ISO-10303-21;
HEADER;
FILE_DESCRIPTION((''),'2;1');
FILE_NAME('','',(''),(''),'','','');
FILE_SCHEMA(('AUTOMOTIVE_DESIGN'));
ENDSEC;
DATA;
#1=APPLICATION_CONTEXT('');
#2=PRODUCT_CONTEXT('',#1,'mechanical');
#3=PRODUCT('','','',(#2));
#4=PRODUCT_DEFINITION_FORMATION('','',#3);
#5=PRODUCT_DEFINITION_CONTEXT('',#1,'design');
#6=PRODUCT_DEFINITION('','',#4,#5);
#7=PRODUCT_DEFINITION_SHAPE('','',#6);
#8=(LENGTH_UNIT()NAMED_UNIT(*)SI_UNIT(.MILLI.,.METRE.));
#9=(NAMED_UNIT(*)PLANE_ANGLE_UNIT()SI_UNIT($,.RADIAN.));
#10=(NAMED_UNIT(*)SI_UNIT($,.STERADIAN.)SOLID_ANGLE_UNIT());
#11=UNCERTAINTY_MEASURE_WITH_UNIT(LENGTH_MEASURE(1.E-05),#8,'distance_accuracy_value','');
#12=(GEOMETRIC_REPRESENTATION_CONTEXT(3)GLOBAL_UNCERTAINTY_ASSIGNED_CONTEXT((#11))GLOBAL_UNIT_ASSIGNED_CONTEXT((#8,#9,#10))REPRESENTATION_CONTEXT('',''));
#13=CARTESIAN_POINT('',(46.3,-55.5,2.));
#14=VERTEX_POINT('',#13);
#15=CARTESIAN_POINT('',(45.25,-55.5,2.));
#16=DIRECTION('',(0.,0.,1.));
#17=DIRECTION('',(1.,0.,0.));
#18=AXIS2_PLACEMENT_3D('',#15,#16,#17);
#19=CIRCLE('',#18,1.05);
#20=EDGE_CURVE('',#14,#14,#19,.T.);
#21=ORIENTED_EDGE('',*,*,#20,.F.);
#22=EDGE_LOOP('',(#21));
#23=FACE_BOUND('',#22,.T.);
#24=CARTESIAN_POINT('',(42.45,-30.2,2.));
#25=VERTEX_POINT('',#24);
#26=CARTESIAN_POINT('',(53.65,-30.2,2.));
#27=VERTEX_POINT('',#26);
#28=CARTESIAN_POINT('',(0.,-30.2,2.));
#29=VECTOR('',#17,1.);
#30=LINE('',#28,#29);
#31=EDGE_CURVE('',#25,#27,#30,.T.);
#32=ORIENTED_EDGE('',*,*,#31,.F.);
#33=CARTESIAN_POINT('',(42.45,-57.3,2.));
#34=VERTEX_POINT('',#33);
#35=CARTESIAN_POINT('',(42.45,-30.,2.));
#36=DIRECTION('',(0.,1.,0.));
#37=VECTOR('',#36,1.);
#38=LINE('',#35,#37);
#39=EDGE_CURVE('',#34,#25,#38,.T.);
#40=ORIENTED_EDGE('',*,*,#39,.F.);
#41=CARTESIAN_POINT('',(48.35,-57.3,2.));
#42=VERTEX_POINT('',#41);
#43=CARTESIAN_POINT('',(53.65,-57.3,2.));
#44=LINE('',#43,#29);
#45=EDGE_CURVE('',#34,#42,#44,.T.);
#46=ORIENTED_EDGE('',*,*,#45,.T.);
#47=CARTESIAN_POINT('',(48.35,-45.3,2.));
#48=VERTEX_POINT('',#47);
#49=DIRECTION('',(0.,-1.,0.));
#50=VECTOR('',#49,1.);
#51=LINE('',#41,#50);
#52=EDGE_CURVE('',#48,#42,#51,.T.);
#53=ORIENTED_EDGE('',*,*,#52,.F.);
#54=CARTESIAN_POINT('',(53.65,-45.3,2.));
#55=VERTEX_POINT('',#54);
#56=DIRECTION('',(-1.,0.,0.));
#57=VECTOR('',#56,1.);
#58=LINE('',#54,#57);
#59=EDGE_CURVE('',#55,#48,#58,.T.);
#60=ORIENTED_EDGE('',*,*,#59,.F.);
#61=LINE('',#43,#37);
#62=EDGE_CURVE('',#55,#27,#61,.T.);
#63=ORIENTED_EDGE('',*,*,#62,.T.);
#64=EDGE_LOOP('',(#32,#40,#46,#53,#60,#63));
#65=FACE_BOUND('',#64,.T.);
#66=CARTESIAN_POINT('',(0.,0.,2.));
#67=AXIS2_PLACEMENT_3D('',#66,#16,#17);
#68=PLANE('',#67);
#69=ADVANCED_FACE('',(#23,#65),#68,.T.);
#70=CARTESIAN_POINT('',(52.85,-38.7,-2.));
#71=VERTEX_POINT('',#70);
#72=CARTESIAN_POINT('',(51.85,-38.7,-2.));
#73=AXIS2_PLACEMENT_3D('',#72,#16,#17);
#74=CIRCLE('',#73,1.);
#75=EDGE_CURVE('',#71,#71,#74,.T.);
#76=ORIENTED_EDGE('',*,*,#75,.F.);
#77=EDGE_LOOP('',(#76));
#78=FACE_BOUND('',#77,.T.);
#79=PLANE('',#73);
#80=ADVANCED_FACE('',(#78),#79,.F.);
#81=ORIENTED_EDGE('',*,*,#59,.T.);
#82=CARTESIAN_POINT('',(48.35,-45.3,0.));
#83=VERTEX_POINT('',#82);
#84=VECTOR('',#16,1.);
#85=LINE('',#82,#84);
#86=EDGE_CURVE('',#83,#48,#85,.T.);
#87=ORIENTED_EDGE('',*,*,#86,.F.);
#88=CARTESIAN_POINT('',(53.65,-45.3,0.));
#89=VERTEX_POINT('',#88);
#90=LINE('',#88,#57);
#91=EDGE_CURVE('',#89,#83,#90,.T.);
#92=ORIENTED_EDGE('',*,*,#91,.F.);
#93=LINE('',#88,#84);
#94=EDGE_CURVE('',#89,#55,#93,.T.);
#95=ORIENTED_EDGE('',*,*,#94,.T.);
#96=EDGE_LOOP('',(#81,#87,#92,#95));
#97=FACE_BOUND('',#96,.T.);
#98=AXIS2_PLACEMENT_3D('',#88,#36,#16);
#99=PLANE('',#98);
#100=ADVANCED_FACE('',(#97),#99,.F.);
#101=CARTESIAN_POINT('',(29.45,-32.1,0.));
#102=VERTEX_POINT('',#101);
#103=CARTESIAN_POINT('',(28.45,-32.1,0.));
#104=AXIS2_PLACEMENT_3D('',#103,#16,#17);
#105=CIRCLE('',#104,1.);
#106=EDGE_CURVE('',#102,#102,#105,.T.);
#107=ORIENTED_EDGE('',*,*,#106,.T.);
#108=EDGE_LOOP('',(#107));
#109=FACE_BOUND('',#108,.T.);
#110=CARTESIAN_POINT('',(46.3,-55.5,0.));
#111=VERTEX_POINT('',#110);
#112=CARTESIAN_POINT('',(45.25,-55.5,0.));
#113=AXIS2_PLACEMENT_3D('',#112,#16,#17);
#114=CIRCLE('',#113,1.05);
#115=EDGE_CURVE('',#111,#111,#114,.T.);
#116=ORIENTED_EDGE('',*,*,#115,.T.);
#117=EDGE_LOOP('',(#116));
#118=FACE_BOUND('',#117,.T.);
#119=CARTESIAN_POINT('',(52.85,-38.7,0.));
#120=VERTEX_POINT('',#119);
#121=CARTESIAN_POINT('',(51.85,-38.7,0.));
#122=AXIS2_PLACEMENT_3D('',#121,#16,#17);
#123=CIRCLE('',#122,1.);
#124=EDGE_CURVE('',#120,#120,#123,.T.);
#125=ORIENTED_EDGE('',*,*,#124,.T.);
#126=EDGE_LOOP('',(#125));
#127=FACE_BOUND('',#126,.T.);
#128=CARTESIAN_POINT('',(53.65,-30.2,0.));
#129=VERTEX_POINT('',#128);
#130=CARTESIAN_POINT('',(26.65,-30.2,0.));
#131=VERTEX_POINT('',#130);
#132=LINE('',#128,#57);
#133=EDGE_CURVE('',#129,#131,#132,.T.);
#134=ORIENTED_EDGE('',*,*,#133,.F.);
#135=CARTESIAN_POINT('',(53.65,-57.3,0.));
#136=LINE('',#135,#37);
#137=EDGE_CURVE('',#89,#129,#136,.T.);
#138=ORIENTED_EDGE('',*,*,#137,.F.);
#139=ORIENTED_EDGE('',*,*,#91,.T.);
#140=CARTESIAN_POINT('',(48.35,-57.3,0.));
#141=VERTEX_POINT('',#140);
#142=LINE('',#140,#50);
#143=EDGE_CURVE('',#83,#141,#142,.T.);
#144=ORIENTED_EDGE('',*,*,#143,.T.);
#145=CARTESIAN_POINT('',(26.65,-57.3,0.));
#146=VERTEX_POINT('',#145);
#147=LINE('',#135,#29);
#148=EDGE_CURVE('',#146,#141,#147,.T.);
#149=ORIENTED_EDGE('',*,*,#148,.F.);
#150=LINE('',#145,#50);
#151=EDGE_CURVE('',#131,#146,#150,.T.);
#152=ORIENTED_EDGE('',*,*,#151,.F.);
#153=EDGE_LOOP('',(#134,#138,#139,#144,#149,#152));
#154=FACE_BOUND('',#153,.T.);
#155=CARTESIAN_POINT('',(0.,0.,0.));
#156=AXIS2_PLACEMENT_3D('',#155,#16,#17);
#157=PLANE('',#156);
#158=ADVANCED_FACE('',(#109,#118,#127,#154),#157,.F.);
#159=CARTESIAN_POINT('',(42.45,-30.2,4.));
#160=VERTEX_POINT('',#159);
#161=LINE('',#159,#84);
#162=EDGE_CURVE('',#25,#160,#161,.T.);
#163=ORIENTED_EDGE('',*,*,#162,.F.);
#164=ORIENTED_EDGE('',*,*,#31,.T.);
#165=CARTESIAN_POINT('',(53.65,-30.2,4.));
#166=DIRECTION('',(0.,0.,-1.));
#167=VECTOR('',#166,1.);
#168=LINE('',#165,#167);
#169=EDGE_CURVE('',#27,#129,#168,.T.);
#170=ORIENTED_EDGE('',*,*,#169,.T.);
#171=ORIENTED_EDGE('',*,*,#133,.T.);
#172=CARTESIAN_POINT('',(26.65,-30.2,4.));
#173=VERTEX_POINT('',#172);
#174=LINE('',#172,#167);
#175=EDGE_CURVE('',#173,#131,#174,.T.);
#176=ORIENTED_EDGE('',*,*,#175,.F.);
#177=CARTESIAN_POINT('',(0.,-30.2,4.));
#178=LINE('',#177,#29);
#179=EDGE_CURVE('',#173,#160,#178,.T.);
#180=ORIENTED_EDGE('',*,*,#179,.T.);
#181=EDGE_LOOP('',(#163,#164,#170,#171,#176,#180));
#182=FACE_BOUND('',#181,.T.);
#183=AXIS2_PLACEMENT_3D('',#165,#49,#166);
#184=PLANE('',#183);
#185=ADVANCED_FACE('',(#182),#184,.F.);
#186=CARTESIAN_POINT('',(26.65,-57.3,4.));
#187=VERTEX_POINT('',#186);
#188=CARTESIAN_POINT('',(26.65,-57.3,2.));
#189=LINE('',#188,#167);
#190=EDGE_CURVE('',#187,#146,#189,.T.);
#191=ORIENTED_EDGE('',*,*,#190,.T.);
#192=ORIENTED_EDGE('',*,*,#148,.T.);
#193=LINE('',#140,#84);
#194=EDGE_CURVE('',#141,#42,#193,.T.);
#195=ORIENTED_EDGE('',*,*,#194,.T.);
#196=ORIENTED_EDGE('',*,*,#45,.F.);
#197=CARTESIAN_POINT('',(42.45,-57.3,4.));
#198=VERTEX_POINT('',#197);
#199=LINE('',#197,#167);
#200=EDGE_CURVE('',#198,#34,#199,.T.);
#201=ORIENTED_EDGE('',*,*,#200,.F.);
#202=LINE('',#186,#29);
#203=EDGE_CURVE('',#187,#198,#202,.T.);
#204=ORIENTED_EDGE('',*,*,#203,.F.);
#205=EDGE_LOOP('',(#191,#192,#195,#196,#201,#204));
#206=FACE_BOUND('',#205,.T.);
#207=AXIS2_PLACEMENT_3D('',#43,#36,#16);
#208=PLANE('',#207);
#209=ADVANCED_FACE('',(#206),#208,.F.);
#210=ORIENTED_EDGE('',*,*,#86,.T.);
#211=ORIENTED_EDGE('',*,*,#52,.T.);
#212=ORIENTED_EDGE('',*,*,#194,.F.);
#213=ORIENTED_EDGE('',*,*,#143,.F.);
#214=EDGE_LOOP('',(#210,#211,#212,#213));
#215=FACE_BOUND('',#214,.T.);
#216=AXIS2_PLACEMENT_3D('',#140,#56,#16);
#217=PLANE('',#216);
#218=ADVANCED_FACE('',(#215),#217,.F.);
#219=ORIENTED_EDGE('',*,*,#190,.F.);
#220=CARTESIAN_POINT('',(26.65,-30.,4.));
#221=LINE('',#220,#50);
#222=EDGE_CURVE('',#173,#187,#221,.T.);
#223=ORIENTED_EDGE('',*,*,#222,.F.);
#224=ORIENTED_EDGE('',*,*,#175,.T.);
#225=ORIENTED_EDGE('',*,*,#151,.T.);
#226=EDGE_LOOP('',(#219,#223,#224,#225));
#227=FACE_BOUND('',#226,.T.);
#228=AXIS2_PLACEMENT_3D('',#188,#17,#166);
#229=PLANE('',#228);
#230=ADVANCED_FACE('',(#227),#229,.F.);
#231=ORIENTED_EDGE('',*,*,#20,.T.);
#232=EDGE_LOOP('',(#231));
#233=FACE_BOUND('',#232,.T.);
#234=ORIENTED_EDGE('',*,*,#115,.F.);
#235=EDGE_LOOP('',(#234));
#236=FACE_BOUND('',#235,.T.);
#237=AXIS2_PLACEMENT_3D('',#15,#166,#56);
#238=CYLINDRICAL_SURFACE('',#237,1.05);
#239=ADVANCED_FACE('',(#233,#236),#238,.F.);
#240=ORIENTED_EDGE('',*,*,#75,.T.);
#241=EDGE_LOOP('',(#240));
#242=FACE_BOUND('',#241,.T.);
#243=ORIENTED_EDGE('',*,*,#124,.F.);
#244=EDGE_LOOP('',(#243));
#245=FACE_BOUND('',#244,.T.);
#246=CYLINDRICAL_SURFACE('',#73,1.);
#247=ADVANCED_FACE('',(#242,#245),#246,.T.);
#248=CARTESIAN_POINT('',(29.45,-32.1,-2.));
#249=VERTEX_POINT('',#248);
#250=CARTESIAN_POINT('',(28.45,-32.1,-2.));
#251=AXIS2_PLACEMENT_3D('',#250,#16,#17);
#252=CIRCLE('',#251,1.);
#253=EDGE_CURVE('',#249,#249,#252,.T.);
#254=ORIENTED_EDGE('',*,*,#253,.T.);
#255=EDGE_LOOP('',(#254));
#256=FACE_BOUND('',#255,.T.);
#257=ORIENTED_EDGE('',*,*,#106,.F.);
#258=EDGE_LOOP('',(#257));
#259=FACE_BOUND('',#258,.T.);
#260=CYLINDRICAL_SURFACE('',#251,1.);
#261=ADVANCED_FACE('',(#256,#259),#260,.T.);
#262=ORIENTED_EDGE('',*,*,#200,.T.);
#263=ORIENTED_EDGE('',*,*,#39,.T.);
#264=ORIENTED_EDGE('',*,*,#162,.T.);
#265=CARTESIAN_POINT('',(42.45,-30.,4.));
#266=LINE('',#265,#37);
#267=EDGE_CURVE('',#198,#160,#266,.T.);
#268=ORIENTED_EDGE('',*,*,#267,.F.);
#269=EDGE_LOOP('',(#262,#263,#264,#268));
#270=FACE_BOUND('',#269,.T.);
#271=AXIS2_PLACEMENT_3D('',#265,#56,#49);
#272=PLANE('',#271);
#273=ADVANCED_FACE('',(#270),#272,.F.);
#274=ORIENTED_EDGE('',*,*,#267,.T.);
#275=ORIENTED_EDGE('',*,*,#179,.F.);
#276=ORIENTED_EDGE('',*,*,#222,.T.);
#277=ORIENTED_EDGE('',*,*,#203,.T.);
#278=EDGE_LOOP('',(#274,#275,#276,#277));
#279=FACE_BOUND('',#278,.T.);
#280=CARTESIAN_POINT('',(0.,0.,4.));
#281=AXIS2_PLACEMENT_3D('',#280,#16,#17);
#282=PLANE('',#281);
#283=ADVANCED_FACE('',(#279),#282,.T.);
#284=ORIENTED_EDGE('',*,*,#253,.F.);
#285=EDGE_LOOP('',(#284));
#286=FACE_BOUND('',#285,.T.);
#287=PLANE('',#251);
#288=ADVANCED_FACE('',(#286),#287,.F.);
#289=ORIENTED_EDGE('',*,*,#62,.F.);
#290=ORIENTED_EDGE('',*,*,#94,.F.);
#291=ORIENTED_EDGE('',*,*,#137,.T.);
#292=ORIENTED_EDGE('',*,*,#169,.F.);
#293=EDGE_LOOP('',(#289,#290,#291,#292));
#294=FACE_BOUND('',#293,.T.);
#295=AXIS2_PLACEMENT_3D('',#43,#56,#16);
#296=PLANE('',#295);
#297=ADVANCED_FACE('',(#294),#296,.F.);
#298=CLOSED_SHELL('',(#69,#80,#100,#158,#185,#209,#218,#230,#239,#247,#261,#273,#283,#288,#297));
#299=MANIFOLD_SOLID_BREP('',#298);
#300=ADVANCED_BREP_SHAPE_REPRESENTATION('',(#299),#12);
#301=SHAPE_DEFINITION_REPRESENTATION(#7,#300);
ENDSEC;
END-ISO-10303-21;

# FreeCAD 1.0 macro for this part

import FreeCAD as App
import Part
import Sketcher

V = App.Vector
Q = App.Units.Quantity


def add_polygon(sketch, points):
    """Adds a closed chain of lines whose ends are joined by coincident constraints."""
    first, n = sketch.GeometryCount, len(points)
    for a, b in zip(points, points[1:] + points[:1]):
        sketch.addGeometry(Part.LineSegment(App.Vector(*a, 0), App.Vector(*b, 0)), False)
    for i in range(n):
        sketch.addConstraint(Sketcher.Constraint("Coincident", first + i, 2, first + (i + 1) % n, 1))

doc = App.newDocument("Part")
params = doc.addObject("Spreadsheet::Sheet", "Params")
for row, (alias, value) in enumerate([
    ("sketch1_diameter", "2.1 mm"),
    ("sketch1_width", "27 mm"),
    ("sketch1_height", "27.3 mm"),
    ("pad1_length", "2 mm"),
    ("sketch2_height", "12 mm"),
    ("sketch2_width", "5.3 mm"),
    ("sketch3_diameter", "2 mm"),
    ("pad2_length", "4 mm"),
    ("sketch4_width", "15.8 mm"),
    ("sketch4_height", "27.3 mm"),
    ("pad3_length", "2 mm"),
    ("sketch5_width", "27 mm"),
    ("sketch5_height", "0.2 mm"),
], start=1):
    params.set(f"A{row}", alias)
    params.set(f"B{row}", "=" + value)
    params.setAlias(f"B{row}", alias)

body = doc.addObject("PartDesign::Body", "Body")

sketch1 = body.newObject("Sketcher::SketchObject", "Sketch")
sketch1.AttachmentSupport = (doc.getObject("XY_Plane"), [""])
sketch1.MapMode = "FlatFace"
add_polygon(sketch1, [(26.65, -30), (26.65, -57.3), (53.65, -57.3), (53.65, -30)])
sketch1.addGeometry(Part.Circle(V(45.25, -55.5, 0), V(0, 0, 1), 1.05), False)
sketch1.addConstraint([
    Sketcher.Constraint("Vertical", 0),
    Sketcher.Constraint("Horizontal", 1),
    Sketcher.Constraint("Vertical", 2),
    Sketcher.Constraint("Horizontal", 3),
    Sketcher.Constraint("Diameter", 4, Q("2.1 mm")),
    Sketcher.Constraint("DistanceX", 1, 1, 1, 2, Q("27 mm")),
    Sketcher.Constraint("DistanceY", 0, 2, 0, 1, Q("27.3 mm")),
    Sketcher.Constraint("DistanceY", 2, 2, -1, 1, Q("30 mm")),
    Sketcher.Constraint("DistanceY", 4, 3, -1, 1, Q("55.5 mm")),
    Sketcher.Constraint("DistanceX", 0, 2, 4, 3, Q("18.6 mm")),
    Sketcher.Constraint("DistanceX", -1, 1, 4, 3, Q("45.25 mm")),
])
sketch1.setExpression("Constraints[8]", "Params.sketch1_diameter")
sketch1.setExpression("Constraints[9]", "Params.sketch1_width")
sketch1.setExpression("Constraints[10]", "Params.sketch1_height")
pad1 = body.newObject("PartDesign::Pad", "Pad")
pad1.Profile = sketch1
pad1.setExpression("Length", "Params.pad1_length")

sketch2 = body.newObject("Sketcher::SketchObject", "Sketch001")
sketch2.AttachmentSupport = (doc.getObject("XY_Plane"), [""])
sketch2.MapMode = "FlatFace"
sketch2.AttachmentOffset = App.Placement(V(0, 0, 2), App.Rotation())
add_polygon(sketch2, [(48.35, -45.3), (48.35, -57.3), (53.65, -57.3), (53.65, -45.3)])
sketch2.addConstraint([
    Sketcher.Constraint("Vertical", 0),
    Sketcher.Constraint("Horizontal", 1),
    Sketcher.Constraint("Vertical", 2),
    Sketcher.Constraint("Horizontal", 3),
    Sketcher.Constraint("DistanceY", 0, 2, 0, 1, Q("12 mm")),
    Sketcher.Constraint("DistanceX", 1, 1, 1, 2, Q("5.3 mm")),
    Sketcher.Constraint("DistanceY", 0, 2, -1, 1, Q("57.3 mm")),
    Sketcher.Constraint("DistanceX", -1, 1, 0, 2, Q("48.35 mm")),
])
sketch2.setExpression("Constraints[8]", "Params.sketch2_height")
sketch2.setExpression("Constraints[9]", "Params.sketch2_width")
pocket1 = body.newObject("PartDesign::Pocket", "Pocket")
pocket1.Profile = sketch2
pocket1.Type = "ThroughAll"

sketch3 = body.newObject("Sketcher::SketchObject", "Sketch002")
sketch3.AttachmentSupport = (doc.getObject("XY_Plane"), [""])
sketch3.MapMode = "FlatFace"
sketch3.AttachmentOffset = App.Placement(V(0, 0, 2), App.Rotation())
sketch3.addGeometry([
    Part.Circle(V(28.45, -32.1, 0), V(0, 0, 1), 1),
    Part.Circle(V(51.85, -38.7, 0), V(0, 0, 1), 1),
], False)
sketch3.addConstraint([
    Sketcher.Constraint("Equal", 0, 1),
    Sketcher.Constraint("Diameter", 0, Q("2 mm")),
    Sketcher.Constraint("DistanceY", 0, 3, -1, 1, Q("32.1 mm")),
    Sketcher.Constraint("DistanceY", 1, 3, -1, 1, Q("38.7 mm")),
    Sketcher.Constraint("DistanceX", 0, 3, 1, 3, Q("23.4 mm")),
    Sketcher.Constraint("DistanceX", -1, 1, 0, 3, Q("28.45 mm")),
])
sketch3.setExpression("Constraints[1]", "Params.sketch3_diameter")
pad2 = body.newObject("PartDesign::Pad", "Pad001")
pad2.Profile = sketch3
pad2.setExpression("Length", "Params.pad2_length")
pad2.Reversed = True

sketch4 = body.newObject("Sketcher::SketchObject", "Sketch003")
sketch4.AttachmentSupport = (doc.getObject("XY_Plane"), [""])
sketch4.MapMode = "FlatFace"
sketch4.AttachmentOffset = App.Placement(V(0, 0, 2), App.Rotation())
add_polygon(sketch4, [(26.65, -30), (26.65, -57.3), (42.45, -57.3), (42.45, -30)])
sketch4.addConstraint([
    Sketcher.Constraint("Vertical", 0),
    Sketcher.Constraint("Horizontal", 1),
    Sketcher.Constraint("Vertical", 2),
    Sketcher.Constraint("Horizontal", 3),
    Sketcher.Constraint("DistanceX", 1, 1, 1, 2, Q("15.8 mm")),
    Sketcher.Constraint("DistanceY", 0, 2, 0, 1, Q("27.3 mm")),
    Sketcher.Constraint("DistanceY", 2, 2, -1, 1, Q("30 mm")),
    Sketcher.Constraint("DistanceX", -1, 1, 0, 2, Q("26.65 mm")),
])
sketch4.setExpression("Constraints[8]", "Params.sketch4_width")
sketch4.setExpression("Constraints[9]", "Params.sketch4_height")
pad3 = body.newObject("PartDesign::Pad", "Pad002")
pad3.Profile = sketch4
pad3.setExpression("Length", "Params.pad3_length")

sketch5 = body.newObject("Sketcher::SketchObject", "Sketch004")
sketch5.AttachmentSupport = (doc.getObject("XY_Plane"), [""])
sketch5.MapMode = "FlatFace"
add_polygon(sketch5, [(53.65, -30), (53.65, -30.2), (26.65, -30.2), (26.65, -30)])
sketch5.addConstraint([
    Sketcher.Constraint("Vertical", 0),
    Sketcher.Constraint("Horizontal", 1),
    Sketcher.Constraint("Vertical", 2),
    Sketcher.Constraint("Horizontal", 3),
    Sketcher.Constraint("DistanceX", 1, 2, 1, 1, Q("27 mm")),
    Sketcher.Constraint("DistanceY", 0, 2, 0, 1, Q("0.2 mm")),
    Sketcher.Constraint("DistanceY", 2, 2, -1, 1, Q("30 mm")),
    Sketcher.Constraint("DistanceX", -1, 1, 0, 2, Q("53.65 mm")),
])
sketch5.setExpression("Constraints[8]", "Params.sketch5_width")
sketch5.setExpression("Constraints[9]", "Params.sketch5_height")
pocket2 = body.newObject("PartDesign::Pocket", "Pocket001")
pocket2.Profile = sketch5
pocket2.Type = "ThroughAll"
pocket2.Reversed = True

doc.recompute()
